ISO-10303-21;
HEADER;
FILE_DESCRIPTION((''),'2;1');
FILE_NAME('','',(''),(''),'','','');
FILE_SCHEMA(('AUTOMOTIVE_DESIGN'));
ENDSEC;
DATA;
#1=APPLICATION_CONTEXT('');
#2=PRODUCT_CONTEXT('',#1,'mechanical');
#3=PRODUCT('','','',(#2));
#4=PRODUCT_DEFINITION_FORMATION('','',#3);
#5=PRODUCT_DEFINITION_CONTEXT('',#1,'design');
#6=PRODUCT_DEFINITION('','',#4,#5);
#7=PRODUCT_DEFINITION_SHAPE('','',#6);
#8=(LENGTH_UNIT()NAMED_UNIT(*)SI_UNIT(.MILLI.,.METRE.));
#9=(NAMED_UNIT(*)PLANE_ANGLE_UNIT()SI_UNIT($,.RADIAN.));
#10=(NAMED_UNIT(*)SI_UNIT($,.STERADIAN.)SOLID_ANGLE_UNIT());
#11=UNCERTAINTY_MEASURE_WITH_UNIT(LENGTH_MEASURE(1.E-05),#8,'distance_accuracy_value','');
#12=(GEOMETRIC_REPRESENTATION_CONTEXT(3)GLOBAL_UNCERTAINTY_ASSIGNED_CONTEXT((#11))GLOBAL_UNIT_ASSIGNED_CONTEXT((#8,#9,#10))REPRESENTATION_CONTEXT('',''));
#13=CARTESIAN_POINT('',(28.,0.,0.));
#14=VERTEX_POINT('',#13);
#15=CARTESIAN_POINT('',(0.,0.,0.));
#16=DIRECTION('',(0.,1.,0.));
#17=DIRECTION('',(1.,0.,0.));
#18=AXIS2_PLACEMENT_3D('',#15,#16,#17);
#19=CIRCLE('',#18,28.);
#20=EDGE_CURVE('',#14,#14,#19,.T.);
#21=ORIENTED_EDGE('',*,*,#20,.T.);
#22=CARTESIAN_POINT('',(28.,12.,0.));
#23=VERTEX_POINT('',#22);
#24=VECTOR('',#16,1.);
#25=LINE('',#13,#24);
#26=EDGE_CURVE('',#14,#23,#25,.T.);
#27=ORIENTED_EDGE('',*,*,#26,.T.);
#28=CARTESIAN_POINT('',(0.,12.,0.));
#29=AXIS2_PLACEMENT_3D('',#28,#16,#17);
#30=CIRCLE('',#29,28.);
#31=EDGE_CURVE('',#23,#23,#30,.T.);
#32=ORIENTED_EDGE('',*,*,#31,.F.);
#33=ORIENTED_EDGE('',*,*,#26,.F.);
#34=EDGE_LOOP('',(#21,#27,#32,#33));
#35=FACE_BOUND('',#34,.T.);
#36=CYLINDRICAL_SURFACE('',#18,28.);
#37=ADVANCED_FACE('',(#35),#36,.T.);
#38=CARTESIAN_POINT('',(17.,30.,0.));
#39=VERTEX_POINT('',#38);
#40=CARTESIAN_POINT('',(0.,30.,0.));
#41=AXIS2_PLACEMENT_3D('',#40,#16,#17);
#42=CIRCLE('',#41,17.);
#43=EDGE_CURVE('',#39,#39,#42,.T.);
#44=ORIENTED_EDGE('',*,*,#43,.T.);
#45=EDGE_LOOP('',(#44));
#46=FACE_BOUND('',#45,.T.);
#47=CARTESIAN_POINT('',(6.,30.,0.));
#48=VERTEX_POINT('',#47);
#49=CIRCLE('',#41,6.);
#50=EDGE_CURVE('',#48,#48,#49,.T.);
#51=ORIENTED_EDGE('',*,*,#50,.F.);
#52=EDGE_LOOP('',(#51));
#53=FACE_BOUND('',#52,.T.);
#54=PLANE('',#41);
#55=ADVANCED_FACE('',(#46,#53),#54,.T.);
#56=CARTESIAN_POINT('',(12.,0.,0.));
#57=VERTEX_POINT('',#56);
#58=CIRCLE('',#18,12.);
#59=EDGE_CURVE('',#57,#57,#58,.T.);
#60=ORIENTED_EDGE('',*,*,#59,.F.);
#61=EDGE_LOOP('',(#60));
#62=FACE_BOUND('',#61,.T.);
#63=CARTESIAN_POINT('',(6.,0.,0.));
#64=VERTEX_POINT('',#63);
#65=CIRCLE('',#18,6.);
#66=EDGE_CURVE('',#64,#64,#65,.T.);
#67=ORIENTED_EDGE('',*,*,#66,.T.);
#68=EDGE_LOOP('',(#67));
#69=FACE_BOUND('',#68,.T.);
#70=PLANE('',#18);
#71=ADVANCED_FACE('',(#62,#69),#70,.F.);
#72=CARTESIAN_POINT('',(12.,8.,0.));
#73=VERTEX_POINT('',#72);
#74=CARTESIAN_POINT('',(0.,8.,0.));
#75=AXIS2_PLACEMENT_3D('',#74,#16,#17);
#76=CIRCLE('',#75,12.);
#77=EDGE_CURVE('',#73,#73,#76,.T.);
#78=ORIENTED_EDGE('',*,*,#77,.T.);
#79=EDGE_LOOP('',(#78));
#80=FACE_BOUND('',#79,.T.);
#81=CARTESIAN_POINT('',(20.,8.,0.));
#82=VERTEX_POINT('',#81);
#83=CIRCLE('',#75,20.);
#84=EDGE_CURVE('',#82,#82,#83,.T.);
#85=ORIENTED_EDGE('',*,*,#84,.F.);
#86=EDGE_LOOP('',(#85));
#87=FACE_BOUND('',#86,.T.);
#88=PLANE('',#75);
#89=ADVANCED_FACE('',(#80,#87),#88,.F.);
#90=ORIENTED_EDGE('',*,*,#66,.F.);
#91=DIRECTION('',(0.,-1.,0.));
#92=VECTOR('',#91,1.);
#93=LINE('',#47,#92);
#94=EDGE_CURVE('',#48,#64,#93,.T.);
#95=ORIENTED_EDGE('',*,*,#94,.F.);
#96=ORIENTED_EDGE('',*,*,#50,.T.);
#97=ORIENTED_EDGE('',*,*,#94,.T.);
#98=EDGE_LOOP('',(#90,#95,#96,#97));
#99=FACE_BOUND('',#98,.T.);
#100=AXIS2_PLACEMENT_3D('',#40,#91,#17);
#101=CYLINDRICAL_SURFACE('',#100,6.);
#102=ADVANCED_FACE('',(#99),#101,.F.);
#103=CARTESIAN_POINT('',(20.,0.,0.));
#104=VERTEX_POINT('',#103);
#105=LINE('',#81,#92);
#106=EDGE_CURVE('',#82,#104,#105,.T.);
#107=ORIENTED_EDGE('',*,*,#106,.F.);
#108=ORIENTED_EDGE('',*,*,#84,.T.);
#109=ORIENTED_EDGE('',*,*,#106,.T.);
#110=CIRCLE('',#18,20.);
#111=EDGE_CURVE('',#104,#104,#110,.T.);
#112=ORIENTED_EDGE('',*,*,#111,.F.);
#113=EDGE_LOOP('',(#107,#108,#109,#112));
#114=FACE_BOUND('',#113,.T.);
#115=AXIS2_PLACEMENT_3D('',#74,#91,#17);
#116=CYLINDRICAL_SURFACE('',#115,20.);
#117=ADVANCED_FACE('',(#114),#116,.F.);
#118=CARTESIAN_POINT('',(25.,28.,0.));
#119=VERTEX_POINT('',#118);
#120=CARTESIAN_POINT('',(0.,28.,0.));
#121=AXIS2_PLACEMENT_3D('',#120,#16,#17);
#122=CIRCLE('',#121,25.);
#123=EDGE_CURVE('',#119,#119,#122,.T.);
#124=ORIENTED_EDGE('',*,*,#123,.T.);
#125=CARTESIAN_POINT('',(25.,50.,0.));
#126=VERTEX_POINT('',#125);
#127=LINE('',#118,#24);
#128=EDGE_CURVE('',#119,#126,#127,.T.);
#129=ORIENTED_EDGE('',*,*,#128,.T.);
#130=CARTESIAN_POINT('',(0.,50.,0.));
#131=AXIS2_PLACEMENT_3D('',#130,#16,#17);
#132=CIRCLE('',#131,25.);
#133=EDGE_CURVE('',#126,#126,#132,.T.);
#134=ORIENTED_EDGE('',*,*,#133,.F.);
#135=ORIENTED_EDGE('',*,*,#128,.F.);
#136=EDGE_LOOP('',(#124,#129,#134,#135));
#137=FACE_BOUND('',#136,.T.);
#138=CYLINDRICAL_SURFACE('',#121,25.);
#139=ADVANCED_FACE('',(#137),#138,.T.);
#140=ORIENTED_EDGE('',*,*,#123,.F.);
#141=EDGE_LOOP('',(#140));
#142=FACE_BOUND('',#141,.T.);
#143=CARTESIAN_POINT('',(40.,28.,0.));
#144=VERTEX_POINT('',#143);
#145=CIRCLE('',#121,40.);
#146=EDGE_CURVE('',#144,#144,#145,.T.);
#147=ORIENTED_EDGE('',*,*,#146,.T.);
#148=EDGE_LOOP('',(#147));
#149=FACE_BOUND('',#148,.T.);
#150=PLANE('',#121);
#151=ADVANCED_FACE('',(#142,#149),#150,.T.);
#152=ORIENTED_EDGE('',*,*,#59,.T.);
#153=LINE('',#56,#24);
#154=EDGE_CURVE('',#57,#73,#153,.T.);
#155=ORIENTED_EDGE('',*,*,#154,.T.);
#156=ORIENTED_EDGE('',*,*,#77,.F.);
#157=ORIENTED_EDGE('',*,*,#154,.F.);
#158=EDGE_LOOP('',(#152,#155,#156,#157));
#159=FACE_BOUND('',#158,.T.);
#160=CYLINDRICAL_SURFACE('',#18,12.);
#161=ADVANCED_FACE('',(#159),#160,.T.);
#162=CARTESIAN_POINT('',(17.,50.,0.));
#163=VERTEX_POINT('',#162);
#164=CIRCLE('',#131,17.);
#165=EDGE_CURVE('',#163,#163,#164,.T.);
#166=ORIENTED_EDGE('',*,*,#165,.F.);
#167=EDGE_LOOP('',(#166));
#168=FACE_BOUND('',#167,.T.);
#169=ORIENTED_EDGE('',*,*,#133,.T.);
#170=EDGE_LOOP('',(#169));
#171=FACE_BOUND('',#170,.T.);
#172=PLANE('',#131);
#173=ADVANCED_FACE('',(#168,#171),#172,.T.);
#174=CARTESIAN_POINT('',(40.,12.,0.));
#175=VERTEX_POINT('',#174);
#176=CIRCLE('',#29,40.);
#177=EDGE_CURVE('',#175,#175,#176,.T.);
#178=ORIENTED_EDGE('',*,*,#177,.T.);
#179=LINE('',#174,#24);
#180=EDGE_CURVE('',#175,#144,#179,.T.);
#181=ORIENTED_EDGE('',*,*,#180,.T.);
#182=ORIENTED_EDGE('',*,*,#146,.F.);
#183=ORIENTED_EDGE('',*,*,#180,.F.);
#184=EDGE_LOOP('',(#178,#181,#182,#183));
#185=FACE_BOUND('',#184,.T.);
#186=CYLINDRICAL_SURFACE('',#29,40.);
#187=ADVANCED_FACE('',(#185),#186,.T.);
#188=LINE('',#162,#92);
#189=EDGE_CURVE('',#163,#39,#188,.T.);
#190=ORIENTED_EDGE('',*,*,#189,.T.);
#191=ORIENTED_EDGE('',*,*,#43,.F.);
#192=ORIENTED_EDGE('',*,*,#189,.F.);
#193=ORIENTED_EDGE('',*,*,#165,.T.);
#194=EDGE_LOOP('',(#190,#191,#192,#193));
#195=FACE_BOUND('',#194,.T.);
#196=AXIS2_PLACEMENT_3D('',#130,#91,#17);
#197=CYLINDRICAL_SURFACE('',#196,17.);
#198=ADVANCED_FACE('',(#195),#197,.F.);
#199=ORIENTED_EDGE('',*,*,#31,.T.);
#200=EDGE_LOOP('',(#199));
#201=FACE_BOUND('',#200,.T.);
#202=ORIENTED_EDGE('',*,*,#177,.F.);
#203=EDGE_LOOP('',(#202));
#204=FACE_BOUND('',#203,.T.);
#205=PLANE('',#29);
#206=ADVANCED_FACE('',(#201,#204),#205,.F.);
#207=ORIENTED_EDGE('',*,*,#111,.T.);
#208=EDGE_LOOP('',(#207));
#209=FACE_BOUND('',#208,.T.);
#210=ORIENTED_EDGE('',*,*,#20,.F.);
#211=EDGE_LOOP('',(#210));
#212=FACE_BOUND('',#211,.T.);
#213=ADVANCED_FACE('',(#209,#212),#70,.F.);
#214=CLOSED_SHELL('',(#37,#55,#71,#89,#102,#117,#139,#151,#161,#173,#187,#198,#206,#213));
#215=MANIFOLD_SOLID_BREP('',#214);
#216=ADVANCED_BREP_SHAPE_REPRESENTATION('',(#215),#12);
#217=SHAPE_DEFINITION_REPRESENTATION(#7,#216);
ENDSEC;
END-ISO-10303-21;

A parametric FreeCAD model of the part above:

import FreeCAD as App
import Part
import Sketcher
from FreeCAD import Vector
Q = App.Units.Quantity

doc = App.newDocument("Part")
body = doc.addObject("PartDesign::Body", "Body")

# Sketch on XY plane
sketch1 = doc.addObject("Sketcher::SketchObject", "Sketch")
body.addObject(sketch1)
sketch1.AttachmentSupport = (doc.XY_Plane, [""])
sketch1.MapMode = "FlatFace"
sketch1.addGeometry([
    Part.LineSegment(Vector(6, 30, 0), Vector(6, 0, 0)),  # 0
    Part.LineSegment(Vector(6, 0, 0), Vector(12, 0, 0)),  # 1
    Part.LineSegment(Vector(12, 0, 0), Vector(12, 8, 0)),  # 2
    Part.LineSegment(Vector(12, 8, 0), Vector(20, 8, 0)),  # 3
    Part.LineSegment(Vector(20, 8, 0), Vector(20, 0, 0)),  # 4
    Part.LineSegment(Vector(20, 0, 0), Vector(28, 0, 0)),  # 5
    Part.LineSegment(Vector(28, 0, 0), Vector(28, 12, 0)),  # 6
    Part.LineSegment(Vector(28, 12, 0), Vector(40, 12, 0)),  # 7
    Part.LineSegment(Vector(40, 12, 0), Vector(40, 28, 0)),  # 8
    Part.LineSegment(Vector(40, 28, 0), Vector(25, 28, 0)),  # 9
    Part.LineSegment(Vector(25, 28, 0), Vector(25, 50, 0)),  # 10
    Part.LineSegment(Vector(25, 50, 0), Vector(17, 50, 0)),  # 11
    Part.LineSegment(Vector(17, 50, 0), Vector(17, 30, 0)),  # 12
    Part.LineSegment(Vector(17, 30, 0), Vector(6, 30, 0)),  # 13
], False)
sketch1.addConstraint([
    Sketcher.Constraint("Coincident", 0, 2, 1, 1),
    Sketcher.Constraint("Coincident", 1, 2, 2, 1),
    Sketcher.Constraint("Coincident", 2, 2, 3, 1),
    Sketcher.Constraint("Coincident", 3, 2, 4, 1),
    Sketcher.Constraint("Coincident", 4, 2, 5, 1),
    Sketcher.Constraint("Coincident", 5, 2, 6, 1),
    Sketcher.Constraint("Coincident", 6, 2, 7, 1),
    Sketcher.Constraint("Coincident", 7, 2, 8, 1),
    Sketcher.Constraint("Coincident", 8, 2, 9, 1),
    Sketcher.Constraint("Coincident", 9, 2, 10, 1),
    Sketcher.Constraint("Coincident", 10, 2, 11, 1),
    Sketcher.Constraint("Coincident", 11, 2, 12, 1),
    Sketcher.Constraint("Coincident", 12, 2, 13, 1),
    Sketcher.Constraint("Coincident", 13, 2, 0, 1),
    Sketcher.Constraint("Vertical", 0),
    Sketcher.Constraint("Horizontal", 1),
    Sketcher.Constraint("Vertical", 2),
    Sketcher.Constraint("Horizontal", 3),
    Sketcher.Constraint("Vertical", 4),
    Sketcher.Constraint("Horizontal", 5),
    Sketcher.Constraint("Vertical", 6),
    Sketcher.Constraint("Horizontal", 7),
    Sketcher.Constraint("Vertical", 8),
    Sketcher.Constraint("Horizontal", 9),
    Sketcher.Constraint("Vertical", 10),
    Sketcher.Constraint("Horizontal", 11),
    Sketcher.Constraint("Vertical", 12),
    Sketcher.Constraint("Horizontal", 13),
    Sketcher.Constraint("PointOnObject", 0, 2, -1),
    Sketcher.Constraint("PointOnObject", 4, 2, -1),
    Sketcher.Constraint("Equal", 3, 5),
    Sketcher.Constraint("Equal", 5, 11),
    Sketcher.Constraint("Equal", 11, 2),
    Sketcher.Constraint("Equal", 7, 6),
    Sketcher.Constraint("DistanceX", 1, 1, 1, 2, Q("6 mm")),
    Sketcher.Constraint("DistanceX", 3, 1, 3, 2, Q("8 mm")),
    Sketcher.Constraint("DistanceX", 7, 1, 7, 2, Q("12 mm")),
    Sketcher.Constraint("DistanceX", 9, 2, 9, 1, Q("15 mm")),
    Sketcher.Constraint("DistanceY", 0, 2, 0, 1, Q("30 mm")),
    Sketcher.Constraint("DistanceY", 10, 1, 10, 2, Q("22 mm")),
    Sketcher.Constraint("DistanceY", 12, 2, 12, 1, Q("20 mm")),
    Sketcher.Constraint("DistanceX", -1, 1, 0, 2, Q("6 mm")),
])
revolution = doc.addObject("PartDesign::Revolution", "Revolution")
body.addObject(revolution)
revolution.Profile = sketch1
revolution.ReferenceAxis = (sketch1, ["V_Axis"])
revolution.Angle = 360

doc.recompute()
